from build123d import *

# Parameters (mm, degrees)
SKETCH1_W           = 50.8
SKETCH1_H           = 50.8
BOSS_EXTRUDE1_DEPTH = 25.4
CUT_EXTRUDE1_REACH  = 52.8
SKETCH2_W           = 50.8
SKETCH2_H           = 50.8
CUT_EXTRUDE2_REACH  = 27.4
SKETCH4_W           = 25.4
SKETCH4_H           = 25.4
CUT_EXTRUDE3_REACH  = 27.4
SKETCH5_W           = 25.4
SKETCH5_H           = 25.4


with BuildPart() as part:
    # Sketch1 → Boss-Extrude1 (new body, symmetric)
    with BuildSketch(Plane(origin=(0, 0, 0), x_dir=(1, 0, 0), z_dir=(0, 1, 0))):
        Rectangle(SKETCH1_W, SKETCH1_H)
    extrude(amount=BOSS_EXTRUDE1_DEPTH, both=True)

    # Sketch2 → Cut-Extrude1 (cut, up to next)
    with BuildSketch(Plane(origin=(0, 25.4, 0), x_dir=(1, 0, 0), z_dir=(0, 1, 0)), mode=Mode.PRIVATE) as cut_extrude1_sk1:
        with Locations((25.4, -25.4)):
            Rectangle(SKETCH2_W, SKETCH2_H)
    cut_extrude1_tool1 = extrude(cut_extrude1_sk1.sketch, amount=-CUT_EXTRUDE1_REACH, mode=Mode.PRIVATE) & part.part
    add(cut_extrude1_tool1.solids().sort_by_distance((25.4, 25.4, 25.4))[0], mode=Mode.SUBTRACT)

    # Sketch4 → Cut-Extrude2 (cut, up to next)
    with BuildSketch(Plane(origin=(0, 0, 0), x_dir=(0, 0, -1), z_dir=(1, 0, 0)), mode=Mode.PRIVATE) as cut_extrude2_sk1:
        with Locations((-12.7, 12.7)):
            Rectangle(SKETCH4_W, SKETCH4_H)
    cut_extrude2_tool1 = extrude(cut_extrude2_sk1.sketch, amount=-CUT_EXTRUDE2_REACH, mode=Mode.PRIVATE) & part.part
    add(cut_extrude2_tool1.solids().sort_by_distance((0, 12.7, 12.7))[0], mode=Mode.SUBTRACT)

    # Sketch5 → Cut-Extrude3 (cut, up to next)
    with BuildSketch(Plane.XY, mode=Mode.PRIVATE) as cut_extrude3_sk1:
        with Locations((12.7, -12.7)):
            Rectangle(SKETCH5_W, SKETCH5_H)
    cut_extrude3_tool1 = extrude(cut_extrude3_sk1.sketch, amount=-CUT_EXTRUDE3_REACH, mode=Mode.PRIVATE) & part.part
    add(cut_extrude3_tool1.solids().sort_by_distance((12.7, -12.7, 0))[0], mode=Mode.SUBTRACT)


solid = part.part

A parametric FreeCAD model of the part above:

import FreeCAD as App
import Part
import Sketcher

V = App.Vector
Q = App.Units.Quantity


def add_polygon(sketch, points):
    """Adds a closed chain of lines whose ends are joined by coincident constraints."""
    first, n = sketch.GeometryCount, len(points)
    for a, b in zip(points, points[1:] + points[:1]):
        sketch.addGeometry(Part.LineSegment(App.Vector(*a, 0), App.Vector(*b, 0)), False)
    for i in range(n):
        sketch.addConstraint(Sketcher.Constraint("Coincident", first + i, 2, first + (i + 1) % n, 1))

doc = App.newDocument("Part")
body = doc.addObject("PartDesign::Body", "Body")

# Sketch on XZ plane
sketch1 = body.newObject("Sketcher::SketchObject", "Sketch")
sketch1.AttachmentSupport = (doc.getObject("XZ_Plane"), [""])
sketch1.MapMode = "FlatFace"
add_polygon(sketch1, [(-25, -25), (-25, 25), (25, 25), (25, -25)])  # lines 0-3
sketch1.addConstraint(Sketcher.Constraint("Vertical", 0))
sketch1.addConstraint(Sketcher.Constraint("Horizontal", 1))
sketch1.addConstraint(Sketcher.Constraint("Vertical", 2))
sketch1.addConstraint(Sketcher.Constraint("Horizontal", 3))
sketch1.addConstraint(Sketcher.Constraint("Symmetric", 0, 2, 2, 2, -1, 1))
sketch1.addConstraint(Sketcher.Constraint("Equal", 3, 0))
sketch1.addConstraint(Sketcher.Constraint("DistanceX", 1, 1, 1, 2, Q("2 in")))
pad1 = body.newObject("PartDesign::Pad", "Pad")
pad1.Profile = sketch1
pad1.Length = Q("2 in")
pad1.Midplane = True

# Sketch on XZ plane
sketch2 = body.newObject("Sketcher::SketchObject", "Sketch001")
sketch2.AttachmentSupport = (doc.getObject("XZ_Plane"), [""])
sketch2.MapMode = "FlatFace"
sketch2.AttachmentOffset = App.Placement(V(0, 0, -1 * 25.4), App.Rotation())
add_polygon(sketch2, [(0, 0), (0, 51), (51, 51), (51, 0)])  # lines 0-3
sketch2.addConstraint(Sketcher.Constraint("Vertical", 0))
sketch2.addConstraint(Sketcher.Constraint("Horizontal", 1))
sketch2.addConstraint(Sketcher.Constraint("Vertical", 2))
sketch2.addConstraint(Sketcher.Constraint("Horizontal", 3))
sketch2.addConstraint(Sketcher.Constraint("Coincident", 3, 2, -1, 1))
sketch2.addConstraint(Sketcher.Constraint("Equal", 3, 0))
sketch2.addConstraint(Sketcher.Constraint("DistanceX", 1, 1, 1, 2, Q("2 in")))
pocket1 = body.newObject("PartDesign::Pocket", "Pocket")
pocket1.Profile = sketch2
pocket1.Type = "UpToFirst"
pocket1.Reversed = True

# Sketch on YZ plane
sketch3 = body.newObject("Sketcher::SketchObject", "Sketch002")
sketch3.AttachmentSupport = (doc.getObject("YZ_Plane"), [""])
sketch3.MapMode = "FlatFace"
add_polygon(sketch3, [(25, 25), (0, 25), (0, 0), (25, 0)])  # lines 0-3
sketch3.addConstraint(Sketcher.Constraint("Horizontal", 0))
sketch3.addConstraint(Sketcher.Constraint("Vertical", 1))
sketch3.addConstraint(Sketcher.Constraint("Horizontal", 2))
sketch3.addConstraint(Sketcher.Constraint("Vertical", 3))
sketch3.addConstraint(Sketcher.Constraint("Coincident", 1, 2, -1, 1))
sketch3.addConstraint(Sketcher.Constraint("Equal", 2, 1))
sketch3.addConstraint(Sketcher.Constraint("DistanceX", 0, 2, 0, 1, Q("1 in")))
pocket2 = body.newObject("PartDesign::Pocket", "Pocket001")
pocket2.Profile = sketch3
pocket2.Type = "UpToFirst"

# Sketch on XY plane
sketch4 = body.newObject("Sketcher::SketchObject", "Sketch003")
sketch4.AttachmentSupport = (doc.getObject("XY_Plane"), [""])
sketch4.MapMode = "FlatFace"
add_polygon(sketch4, [(0, 0), (0, -25), (25, -25), (25, 0)])  # lines 0-3
sketch4.addConstraint(Sketcher.Constraint("Vertical", 0))
sketch4.addConstraint(Sketcher.Constraint("Horizontal", 1))
sketch4.addConstraint(Sketcher.Constraint("Vertical", 2))
sketch4.addConstraint(Sketcher.Constraint("Horizontal", 3))
sketch4.addConstraint(Sketcher.Constraint("Coincident", 3, 2, -1, 1))
sketch4.addConstraint(Sketcher.Constraint("Equal", 3, 0))
sketch4.addConstraint(Sketcher.Constraint("DistanceX", 1, 1, 1, 2, Q("1 in")))
pocket3 = body.newObject("PartDesign::Pocket", "Pocket002")
pocket3.Profile = sketch4
pocket3.Type = "UpToFirst"

doc.recompute()
